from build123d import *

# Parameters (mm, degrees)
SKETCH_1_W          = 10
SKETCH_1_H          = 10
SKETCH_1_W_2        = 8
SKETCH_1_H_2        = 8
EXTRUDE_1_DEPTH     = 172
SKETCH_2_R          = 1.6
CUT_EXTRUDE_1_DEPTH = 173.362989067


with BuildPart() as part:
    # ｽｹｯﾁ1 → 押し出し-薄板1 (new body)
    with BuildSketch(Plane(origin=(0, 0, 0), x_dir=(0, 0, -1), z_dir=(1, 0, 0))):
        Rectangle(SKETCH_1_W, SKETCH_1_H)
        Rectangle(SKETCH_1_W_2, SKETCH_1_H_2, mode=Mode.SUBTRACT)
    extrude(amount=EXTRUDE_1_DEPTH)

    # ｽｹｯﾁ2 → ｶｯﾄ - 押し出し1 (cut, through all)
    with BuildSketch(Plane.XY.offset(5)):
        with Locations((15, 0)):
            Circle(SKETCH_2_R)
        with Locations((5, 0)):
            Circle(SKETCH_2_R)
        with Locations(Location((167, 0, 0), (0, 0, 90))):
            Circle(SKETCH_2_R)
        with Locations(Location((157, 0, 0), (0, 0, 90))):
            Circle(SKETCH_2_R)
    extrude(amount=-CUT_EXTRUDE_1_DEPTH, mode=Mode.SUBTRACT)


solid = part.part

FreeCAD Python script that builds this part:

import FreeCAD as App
import Part
import Sketcher
from FreeCAD import Vector


def add_polygon(sketch, points):
    """Adds a closed chain of lines whose ends are joined by coincident constraints."""
    first, n = sketch.GeometryCount, len(points)
    for a, b in zip(points, points[1:] + points[:1]):
        sketch.addGeometry(Part.LineSegment(App.Vector(*a, 0), App.Vector(*b, 0)), False)
    for i in range(n):
        sketch.addConstraint(Sketcher.Constraint("Coincident", first + i, 2, first + (i + 1) % n, 1))

doc = App.newDocument("Part")
body = doc.addObject("PartDesign::Body", "Body")

# Sketch on YZ plane
sketch1 = body.newObject("Sketcher::SketchObject", "Sketch")
sketch1.AttachmentSupport = (doc.getObject("YZ_Plane"), [""])
sketch1.MapMode = "FlatFace"
add_polygon(sketch1, [(5, 5), (-5, 5), (-5, -5), (5, -5)])  # lines 0-3
add_polygon(sketch1, [(-4, -4), (-4, 4), (4, 4), (4, -4)])  # lines 4-7
sketch1.addConstraint(Sketcher.Constraint("Horizontal", 0))
sketch1.addConstraint(Sketcher.Constraint("Vertical", 1))
sketch1.addConstraint(Sketcher.Constraint("Horizontal", 2))
sketch1.addConstraint(Sketcher.Constraint("Vertical", 3))
sketch1.addConstraint(Sketcher.Constraint("Vertical", 4))
sketch1.addConstraint(Sketcher.Constraint("Horizontal", 5))
sketch1.addConstraint(Sketcher.Constraint("Vertical", 6))
sketch1.addConstraint(Sketcher.Constraint("Horizontal", 7))
sketch1.addConstraint(Sketcher.Constraint("Symmetric", 0, 2, 2, 2, -1, 1))
sketch1.addConstraint(Sketcher.Constraint("Symmetric", 4, 2, 6, 2, -1, 1))
sketch1.addConstraint(Sketcher.Constraint("Equal", 2, 1))
sketch1.addConstraint(Sketcher.Constraint("Equal", 7, 4))
sketch1.addConstraint(Sketcher.Constraint("DistanceX", 0, 2, 0, 1, 10.0))
sketch1.addConstraint(Sketcher.Constraint("DistanceX", 5, 1, 5, 2, 8.0))
pad1 = body.newObject("PartDesign::Pad", "Pad")
pad1.Profile = sketch1
pad1.Length = 172

# Sketch on XY plane
sketch2 = body.newObject("Sketcher::SketchObject", "Sketch001")
sketch2.AttachmentSupport = (doc.getObject("XY_Plane"), [""])
sketch2.MapMode = "FlatFace"
sketch2.AttachmentOffset = App.Placement(Vector(0, 0, 5), App.Rotation())
sketch2.addGeometry(Part.Circle(Vector(15, 0, 0), Vector(0, 0, 1), 1.6), False)
sketch2.addGeometry(Part.Circle(Vector(5, 0, 0), Vector(0, 0, 1), 1.6), False)
sketch2.addGeometry(Part.Circle(Vector(167, 0, 0), Vector(0, 0, 1), 1.6), False)
sketch2.addGeometry(Part.Circle(Vector(157, 0, 0), Vector(0, 0, 1), 1.6), False)
sketch2.addConstraint(Sketcher.Constraint("Equal", 0, 1))
sketch2.addConstraint(Sketcher.Constraint("Equal", 1, 2))
sketch2.addConstraint(Sketcher.Constraint("Equal", 2, 3))
sketch2.addConstraint(Sketcher.Constraint("PointOnObject", 0, 3, -1))
sketch2.addConstraint(Sketcher.Constraint("PointOnObject", 1, 3, -1))
sketch2.addConstraint(Sketcher.Constraint("PointOnObject", 2, 3, -1))
sketch2.addConstraint(Sketcher.Constraint("PointOnObject", 3, 3, -1))
sketch2.addConstraint(Sketcher.Constraint("Diameter", 0, 3.2))
sketch2.addConstraint(Sketcher.Constraint("DistanceX", -1, 1, 0, 3, 15.0))
sketch2.addConstraint(Sketcher.Constraint("DistanceX", -1, 1, 1, 3, 5.0))
sketch2.addConstraint(Sketcher.Constraint("DistanceX", -1, 1, 2, 3, 167.0))
sketch2.addConstraint(Sketcher.Constraint("DistanceX", -1, 1, 3, 3, 157.0))
pocket1 = body.newObject("PartDesign::Pocket", "Pocket")
pocket1.Profile = sketch2
pocket1.Type = "ThroughAll"

doc.recompute()
